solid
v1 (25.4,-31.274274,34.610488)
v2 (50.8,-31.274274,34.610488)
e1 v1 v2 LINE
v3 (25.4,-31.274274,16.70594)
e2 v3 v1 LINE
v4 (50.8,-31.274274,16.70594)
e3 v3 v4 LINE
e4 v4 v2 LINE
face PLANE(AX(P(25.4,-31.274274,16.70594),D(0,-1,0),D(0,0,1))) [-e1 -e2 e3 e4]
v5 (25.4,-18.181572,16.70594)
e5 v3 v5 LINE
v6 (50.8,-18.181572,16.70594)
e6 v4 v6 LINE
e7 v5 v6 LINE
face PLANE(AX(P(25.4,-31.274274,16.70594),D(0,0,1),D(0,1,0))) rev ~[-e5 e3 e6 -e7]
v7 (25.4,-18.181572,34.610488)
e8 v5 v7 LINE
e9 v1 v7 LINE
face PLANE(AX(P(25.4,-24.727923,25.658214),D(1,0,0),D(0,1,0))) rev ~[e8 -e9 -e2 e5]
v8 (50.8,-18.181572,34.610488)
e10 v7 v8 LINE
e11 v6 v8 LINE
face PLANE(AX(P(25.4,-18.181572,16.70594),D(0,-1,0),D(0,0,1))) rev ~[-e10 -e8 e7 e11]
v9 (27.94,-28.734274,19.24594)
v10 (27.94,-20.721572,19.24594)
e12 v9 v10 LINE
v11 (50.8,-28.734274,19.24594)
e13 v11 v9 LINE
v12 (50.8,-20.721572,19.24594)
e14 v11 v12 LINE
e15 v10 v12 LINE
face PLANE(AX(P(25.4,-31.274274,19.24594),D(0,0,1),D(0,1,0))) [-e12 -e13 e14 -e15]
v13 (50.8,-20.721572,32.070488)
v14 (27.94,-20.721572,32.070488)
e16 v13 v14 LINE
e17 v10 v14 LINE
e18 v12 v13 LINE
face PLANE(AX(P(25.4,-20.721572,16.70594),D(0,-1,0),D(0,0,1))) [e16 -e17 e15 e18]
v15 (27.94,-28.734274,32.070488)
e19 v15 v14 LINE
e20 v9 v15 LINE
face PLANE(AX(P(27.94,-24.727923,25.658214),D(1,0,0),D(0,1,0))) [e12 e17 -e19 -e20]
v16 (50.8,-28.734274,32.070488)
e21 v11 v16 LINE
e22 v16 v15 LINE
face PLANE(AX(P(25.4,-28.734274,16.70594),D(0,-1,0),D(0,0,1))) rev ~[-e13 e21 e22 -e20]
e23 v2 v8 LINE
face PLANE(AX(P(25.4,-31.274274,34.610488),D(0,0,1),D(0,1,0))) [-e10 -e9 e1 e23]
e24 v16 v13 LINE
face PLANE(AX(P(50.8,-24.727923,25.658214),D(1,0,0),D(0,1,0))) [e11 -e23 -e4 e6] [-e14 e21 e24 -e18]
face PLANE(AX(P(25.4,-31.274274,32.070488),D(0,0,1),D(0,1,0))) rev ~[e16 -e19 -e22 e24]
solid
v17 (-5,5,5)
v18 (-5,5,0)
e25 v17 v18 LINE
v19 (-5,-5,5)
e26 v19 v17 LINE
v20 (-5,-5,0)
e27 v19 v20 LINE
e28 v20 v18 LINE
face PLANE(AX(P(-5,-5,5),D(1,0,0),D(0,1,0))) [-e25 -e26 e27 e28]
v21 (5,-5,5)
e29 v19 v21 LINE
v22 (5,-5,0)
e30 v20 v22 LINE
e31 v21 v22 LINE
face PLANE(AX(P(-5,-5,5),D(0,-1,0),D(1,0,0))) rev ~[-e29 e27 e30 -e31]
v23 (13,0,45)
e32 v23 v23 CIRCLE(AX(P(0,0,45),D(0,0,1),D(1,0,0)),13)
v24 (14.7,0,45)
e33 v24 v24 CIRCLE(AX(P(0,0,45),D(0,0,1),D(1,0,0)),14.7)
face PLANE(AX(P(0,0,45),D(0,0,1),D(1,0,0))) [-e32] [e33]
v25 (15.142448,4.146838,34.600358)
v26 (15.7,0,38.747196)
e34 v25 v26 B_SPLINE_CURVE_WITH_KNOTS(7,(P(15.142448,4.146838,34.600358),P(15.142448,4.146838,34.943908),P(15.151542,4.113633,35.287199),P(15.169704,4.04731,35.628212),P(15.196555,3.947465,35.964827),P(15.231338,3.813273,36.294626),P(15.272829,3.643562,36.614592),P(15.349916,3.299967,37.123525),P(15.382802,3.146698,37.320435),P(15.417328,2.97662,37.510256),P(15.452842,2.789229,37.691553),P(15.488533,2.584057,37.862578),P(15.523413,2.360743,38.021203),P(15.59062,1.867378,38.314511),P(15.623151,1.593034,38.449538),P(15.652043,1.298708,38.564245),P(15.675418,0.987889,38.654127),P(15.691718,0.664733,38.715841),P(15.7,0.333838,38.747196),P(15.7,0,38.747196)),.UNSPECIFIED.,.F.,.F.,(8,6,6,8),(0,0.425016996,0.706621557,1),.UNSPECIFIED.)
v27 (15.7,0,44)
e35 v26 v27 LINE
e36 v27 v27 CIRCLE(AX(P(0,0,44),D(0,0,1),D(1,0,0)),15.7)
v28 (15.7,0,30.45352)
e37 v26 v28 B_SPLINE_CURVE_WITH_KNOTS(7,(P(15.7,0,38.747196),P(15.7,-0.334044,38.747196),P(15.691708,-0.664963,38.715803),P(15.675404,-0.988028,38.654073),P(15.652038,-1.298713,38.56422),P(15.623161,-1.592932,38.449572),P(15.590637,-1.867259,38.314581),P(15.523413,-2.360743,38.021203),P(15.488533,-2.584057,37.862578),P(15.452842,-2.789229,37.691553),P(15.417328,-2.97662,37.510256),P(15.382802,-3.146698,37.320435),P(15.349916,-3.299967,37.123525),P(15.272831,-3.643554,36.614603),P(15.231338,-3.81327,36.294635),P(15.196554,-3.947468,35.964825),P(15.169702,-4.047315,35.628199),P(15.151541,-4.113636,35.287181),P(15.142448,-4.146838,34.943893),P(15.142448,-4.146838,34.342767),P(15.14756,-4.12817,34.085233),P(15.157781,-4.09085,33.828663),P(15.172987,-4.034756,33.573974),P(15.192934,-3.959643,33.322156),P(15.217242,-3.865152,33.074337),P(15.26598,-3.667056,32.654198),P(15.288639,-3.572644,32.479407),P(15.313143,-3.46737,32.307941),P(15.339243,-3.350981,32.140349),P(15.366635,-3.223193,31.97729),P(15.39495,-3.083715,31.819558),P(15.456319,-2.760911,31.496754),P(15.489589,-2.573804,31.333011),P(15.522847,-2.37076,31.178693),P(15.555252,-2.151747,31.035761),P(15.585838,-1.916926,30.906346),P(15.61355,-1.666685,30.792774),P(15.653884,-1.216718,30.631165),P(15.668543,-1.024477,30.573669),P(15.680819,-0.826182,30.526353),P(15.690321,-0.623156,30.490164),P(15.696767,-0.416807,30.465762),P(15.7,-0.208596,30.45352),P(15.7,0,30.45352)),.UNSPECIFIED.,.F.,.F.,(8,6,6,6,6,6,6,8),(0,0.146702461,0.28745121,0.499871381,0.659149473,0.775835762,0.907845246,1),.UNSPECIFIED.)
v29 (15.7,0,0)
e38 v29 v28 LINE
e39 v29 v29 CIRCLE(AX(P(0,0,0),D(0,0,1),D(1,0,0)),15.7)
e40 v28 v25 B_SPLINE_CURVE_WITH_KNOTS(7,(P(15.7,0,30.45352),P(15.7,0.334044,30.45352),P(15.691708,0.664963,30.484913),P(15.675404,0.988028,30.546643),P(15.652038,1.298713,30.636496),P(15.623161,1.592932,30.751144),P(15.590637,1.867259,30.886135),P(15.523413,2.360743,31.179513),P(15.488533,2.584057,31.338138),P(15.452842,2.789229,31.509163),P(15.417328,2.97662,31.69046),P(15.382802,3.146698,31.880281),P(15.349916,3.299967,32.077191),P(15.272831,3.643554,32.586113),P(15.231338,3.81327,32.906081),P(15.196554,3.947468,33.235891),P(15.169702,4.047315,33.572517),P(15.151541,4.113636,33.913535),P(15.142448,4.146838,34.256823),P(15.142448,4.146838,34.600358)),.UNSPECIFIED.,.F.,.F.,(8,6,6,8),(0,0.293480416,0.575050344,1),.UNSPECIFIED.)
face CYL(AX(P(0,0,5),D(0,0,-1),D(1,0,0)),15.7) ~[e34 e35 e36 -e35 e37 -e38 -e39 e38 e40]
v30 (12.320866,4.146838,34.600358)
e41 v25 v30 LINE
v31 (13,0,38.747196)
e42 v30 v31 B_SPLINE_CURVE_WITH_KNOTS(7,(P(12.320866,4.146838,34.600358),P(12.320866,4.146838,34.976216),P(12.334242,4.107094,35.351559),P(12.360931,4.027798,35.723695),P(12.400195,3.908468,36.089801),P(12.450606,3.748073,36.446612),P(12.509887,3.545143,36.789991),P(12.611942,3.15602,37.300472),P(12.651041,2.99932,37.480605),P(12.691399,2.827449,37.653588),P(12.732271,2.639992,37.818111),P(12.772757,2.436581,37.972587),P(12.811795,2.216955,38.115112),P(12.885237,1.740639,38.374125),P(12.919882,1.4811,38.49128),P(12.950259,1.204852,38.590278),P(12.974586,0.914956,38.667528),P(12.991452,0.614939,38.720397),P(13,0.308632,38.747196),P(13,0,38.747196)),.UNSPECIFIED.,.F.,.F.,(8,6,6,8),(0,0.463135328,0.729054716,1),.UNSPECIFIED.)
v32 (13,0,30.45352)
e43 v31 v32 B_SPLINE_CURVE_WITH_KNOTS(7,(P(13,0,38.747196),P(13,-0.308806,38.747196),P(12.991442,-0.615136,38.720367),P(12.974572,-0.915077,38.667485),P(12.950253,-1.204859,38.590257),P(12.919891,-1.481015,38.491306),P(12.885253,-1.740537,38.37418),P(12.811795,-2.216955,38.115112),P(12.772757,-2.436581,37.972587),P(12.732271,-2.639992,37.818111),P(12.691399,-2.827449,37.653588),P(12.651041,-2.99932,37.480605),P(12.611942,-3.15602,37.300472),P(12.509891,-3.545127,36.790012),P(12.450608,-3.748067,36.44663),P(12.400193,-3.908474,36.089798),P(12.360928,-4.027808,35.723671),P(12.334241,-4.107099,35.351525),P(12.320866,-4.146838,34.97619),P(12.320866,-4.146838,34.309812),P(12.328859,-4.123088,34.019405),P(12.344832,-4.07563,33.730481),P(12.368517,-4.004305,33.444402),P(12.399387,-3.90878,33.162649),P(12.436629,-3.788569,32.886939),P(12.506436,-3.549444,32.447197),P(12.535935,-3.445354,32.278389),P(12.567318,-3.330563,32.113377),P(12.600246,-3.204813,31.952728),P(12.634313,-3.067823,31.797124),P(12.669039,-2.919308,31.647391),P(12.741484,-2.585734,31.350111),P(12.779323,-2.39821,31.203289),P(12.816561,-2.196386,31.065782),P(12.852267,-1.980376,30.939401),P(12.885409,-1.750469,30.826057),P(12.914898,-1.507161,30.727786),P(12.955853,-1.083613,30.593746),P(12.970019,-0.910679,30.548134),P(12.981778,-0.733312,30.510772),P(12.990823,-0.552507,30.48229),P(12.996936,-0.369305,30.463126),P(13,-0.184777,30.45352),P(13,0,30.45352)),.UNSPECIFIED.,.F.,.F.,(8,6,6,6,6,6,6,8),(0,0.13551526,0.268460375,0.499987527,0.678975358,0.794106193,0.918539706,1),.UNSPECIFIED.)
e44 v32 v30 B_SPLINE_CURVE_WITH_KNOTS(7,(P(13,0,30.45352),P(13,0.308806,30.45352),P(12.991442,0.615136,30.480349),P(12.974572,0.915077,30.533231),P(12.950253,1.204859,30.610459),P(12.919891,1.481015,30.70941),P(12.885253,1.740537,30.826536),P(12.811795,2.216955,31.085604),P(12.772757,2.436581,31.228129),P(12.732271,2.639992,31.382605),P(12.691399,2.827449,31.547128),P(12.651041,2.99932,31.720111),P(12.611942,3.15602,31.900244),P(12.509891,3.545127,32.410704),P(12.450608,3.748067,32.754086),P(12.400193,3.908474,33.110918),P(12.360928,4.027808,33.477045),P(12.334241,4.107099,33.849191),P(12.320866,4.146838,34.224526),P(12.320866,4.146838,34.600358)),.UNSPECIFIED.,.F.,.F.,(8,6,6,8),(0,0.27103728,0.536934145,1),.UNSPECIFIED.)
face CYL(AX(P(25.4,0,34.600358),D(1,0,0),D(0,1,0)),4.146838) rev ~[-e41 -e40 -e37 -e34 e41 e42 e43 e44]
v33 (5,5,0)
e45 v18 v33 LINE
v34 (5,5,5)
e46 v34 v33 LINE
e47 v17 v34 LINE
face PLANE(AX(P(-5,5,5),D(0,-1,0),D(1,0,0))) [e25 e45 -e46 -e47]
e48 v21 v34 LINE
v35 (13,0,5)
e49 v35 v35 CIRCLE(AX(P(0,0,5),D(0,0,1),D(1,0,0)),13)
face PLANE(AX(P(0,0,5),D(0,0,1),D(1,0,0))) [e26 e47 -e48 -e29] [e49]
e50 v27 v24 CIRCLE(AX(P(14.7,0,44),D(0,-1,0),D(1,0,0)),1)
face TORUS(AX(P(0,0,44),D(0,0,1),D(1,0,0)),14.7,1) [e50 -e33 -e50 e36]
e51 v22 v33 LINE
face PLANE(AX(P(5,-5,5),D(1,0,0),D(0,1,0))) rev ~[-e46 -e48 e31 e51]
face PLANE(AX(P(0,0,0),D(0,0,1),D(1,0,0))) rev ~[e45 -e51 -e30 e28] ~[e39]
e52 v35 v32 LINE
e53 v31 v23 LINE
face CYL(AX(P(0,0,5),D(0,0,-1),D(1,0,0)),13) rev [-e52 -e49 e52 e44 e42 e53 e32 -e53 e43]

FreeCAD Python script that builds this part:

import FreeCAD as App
import Part
import Sketcher
from FreeCAD import Vector


def edges_at(feature, points):
    """Names of the edges that pass closest to the given points."""
    edges = feature.Shape.Edges
    near = lambda p: min(range(len(edges)), key=lambda i: edges[i].distToShape(Part.Vertex(*p))[0])
    return sorted({f"Edge{near(p) + 1}" for p in points})


def faces_at(feature, points):
    """Names of the faces that lie closest to the given points."""
    faces = feature.Shape.Faces
    near = lambda p: min(range(len(faces)), key=lambda i: faces[i].distToShape(Part.Vertex(*p))[0])
    return sorted({f"Face{near(p) + 1}" for p in points})

doc = App.newDocument("Part")
params = doc.addObject("Spreadsheet::Sheet", "Params")
for row, (alias, value) in enumerate([
    ("sketch1_diameter", "31.4 mm"),
    ("pad1_length", "5 mm"),
    ("sketch2_diameter", "26 mm"),
    ("sketch2_diameter2", "31.4 mm"),
    ("pad2_length", "40 mm"),
    ("sketch3_width", "10 mm"),
    ("pocket1_length", "25.4 mm"),
    ("fillet_radius", "1 mm"),
    ("pocket2_length", "25.4 mm"),
    ("pad3_length", "25.4 mm"),
    ("thickness_wall", "2.54 mm"),
], start=1):
    params.set(f"A{row}", alias)
    params.set(f"B{row}", "=" + value)
    params.setAlias(f"B{row}", alias)

body = doc.addObject("PartDesign::Body", "Body")

# Sketch on XY plane
sketch1 = body.newObject("Sketcher::SketchObject", "Sketch")
sketch1.AttachmentSupport = (doc.getObject("XY_Plane"), [""])
sketch1.MapMode = "FlatFace"
sketch1.addGeometry(Part.Circle(Vector(0, 0, 0), Vector(0, 0, 1), 16), False)
sketch1.addConstraint(Sketcher.Constraint("Coincident", 0, 3, -1, 1))
sketch1.addConstraint(Sketcher.Constraint("Diameter", 0, 31.4))
sketch1.setExpression("Constraints[1]", "Params.sketch1_diameter")
pad1 = body.newObject("PartDesign::Pad", "Pad")
pad1.Profile = sketch1
pad1.setExpression("Length", "Params.pad1_length")

# Sketch on XY plane
sketch2 = body.newObject("Sketcher::SketchObject", "Sketch001")
sketch2.AttachmentSupport = (doc.getObject("XY_Plane"), [""])
sketch2.MapMode = "FlatFace"
sketch2.AttachmentOffset = App.Placement(Vector(0, 0, 5), App.Rotation())
sketch2.addGeometry(Part.Circle(Vector(0, 0, 0), Vector(0, 0, 1), 16), False)
sketch2.addGeometry(Part.Circle(Vector(0, 0, 0), Vector(0, 0, 1), 13), False)
sketch2.addConstraint(Sketcher.Constraint("Coincident", 0, 3, -1, 1))
sketch2.addConstraint(Sketcher.Constraint("Coincident", 1, 3, -1, 1))
sketch2.addConstraint(Sketcher.Constraint("Diameter", 1, 26.0))
sketch2.addConstraint(Sketcher.Constraint("Diameter", 0, 31.4))
sketch2.setExpression("Constraints[2]", "Params.sketch2_diameter")
sketch2.setExpression("Constraints[3]", "Params.sketch2_diameter2")
pad2 = body.newObject("PartDesign::Pad", "Pad001")
pad2.Profile = sketch2
pad2.setExpression("Length", "Params.pad2_length")

# Sketch on XY plane
sketch3 = body.newObject("Sketcher::SketchObject", "Sketch002")
sketch3.AttachmentSupport = (doc.getObject("XY_Plane"), [""])
sketch3.MapMode = "FlatFace"
sketch3.AttachmentOffset = App.Placement(Vector(0, 0, 5), App.Rotation())
sketch3.addGeometry(Part.LineSegment(Vector(-5, 5, 0), Vector(-5, -5, 0)), False)
sketch3.addGeometry(Part.LineSegment(Vector(-5, -5, 0), Vector(5, -5, 0)), False)
sketch3.addGeometry(Part.LineSegment(Vector(5, -5, 0), Vector(5, 5, 0)), False)
sketch3.addGeometry(Part.LineSegment(Vector(5, 5, 0), Vector(-5, 5, 0)), False)
sketch3.addConstraint(Sketcher.Constraint("Coincident", 0, 2, 1, 1))
sketch3.addConstraint(Sketcher.Constraint("Coincident", 1, 2, 2, 1))
sketch3.addConstraint(Sketcher.Constraint("Coincident", 2, 2, 3, 1))
sketch3.addConstraint(Sketcher.Constraint("Coincident", 3, 2, 0, 1))
sketch3.addConstraint(Sketcher.Constraint("Vertical", 0))
sketch3.addConstraint(Sketcher.Constraint("Horizontal", 1))
sketch3.addConstraint(Sketcher.Constraint("Vertical", 2))
sketch3.addConstraint(Sketcher.Constraint("Horizontal", 3))
sketch3.addConstraint(Sketcher.Constraint("Symmetric", 0, 2, 2, 2, -1, 1))
sketch3.addConstraint(Sketcher.Constraint("Equal", 3, 0))
sketch3.addConstraint(Sketcher.Constraint("DistanceX", 1, 1, 1, 2, 10.0))
sketch3.setExpression("Constraints[10]", "Params.sketch3_width")
pocket1 = body.newObject("PartDesign::Pocket", "Pocket")
pocket1.Profile = sketch3
pocket1.setExpression("Length", "Params.pocket1_length")
doc.recompute()

fillet = body.newObject("PartDesign::Fillet", "Fillet")
fillet.Base = (pocket1, edges_at(pocket1, [(-15.7, 0, 45)]))
fillet.setExpression("Radius", "Params.fillet_radius")

# Sketch on YZ plane
sketch4 = body.newObject("Sketcher::SketchObject", "Sketch003")
sketch4.AttachmentSupport = (doc.getObject("YZ_Plane"), [""])
sketch4.MapMode = "FlatFace"
sketch4.AttachmentOffset = App.Placement(Vector(0, 0, 25.4), App.Rotation())
sketch4.addGeometry(Part.Circle(Vector(0, 34.6, 0), Vector(0, 0, 1), 4.1), False)
sketch4.addConstraint(Sketcher.Constraint("PointOnObject", 0, 3, -2))
sketch4.addConstraint(Sketcher.Constraint("Diameter", 0, 8.293676))
sketch4.addConstraint(Sketcher.Constraint("DistanceY", -1, 1, 0, 3, 34.600358))
pocket2 = body.newObject("PartDesign::Pocket", "Pocket001")
pocket2.Profile = sketch4
pocket2.setExpression("Length", "Params.pocket2_length")
body2 = doc.addObject("PartDesign::Body", "Body001")

# Sketch on YZ plane
sketch5 = body2.newObject("Sketcher::SketchObject", "Sketch004")
sketch5.AttachmentSupport = (doc.getObject("YZ_Plane001"), [""])
sketch5.MapMode = "FlatFace"
sketch5.AttachmentOffset = App.Placement(Vector(0, 0, 25.4), App.Rotation())
sketch5.addGeometry(Part.LineSegment(Vector(-31, 35, 0), Vector(-31, 17, 0)), False)
sketch5.addGeometry(Part.LineSegment(Vector(-31, 17, 0), Vector(-18, 17, 0)), False)
sketch5.addGeometry(Part.LineSegment(Vector(-18, 17, 0), Vector(-18, 35, 0)), False)
sketch5.addGeometry(Part.LineSegment(Vector(-18, 35, 0), Vector(-31, 35, 0)), False)
sketch5.addConstraint(Sketcher.Constraint("Coincident", 0, 2, 1, 1))
sketch5.addConstraint(Sketcher.Constraint("Coincident", 1, 2, 2, 1))
sketch5.addConstraint(Sketcher.Constraint("Coincident", 2, 2, 3, 1))
sketch5.addConstraint(Sketcher.Constraint("Coincident", 3, 2, 0, 1))
sketch5.addConstraint(Sketcher.Constraint("Vertical", 0))
sketch5.addConstraint(Sketcher.Constraint("Horizontal", 1))
sketch5.addConstraint(Sketcher.Constraint("Vertical", 2))
sketch5.addConstraint(Sketcher.Constraint("Horizontal", 3))
sketch5.addConstraint(Sketcher.Constraint("DistanceX", 1, 1, 1, 2, 13.092702))
sketch5.addConstraint(Sketcher.Constraint("DistanceY", 0, 2, 0, 1, 17.904548))
sketch5.addConstraint(Sketcher.Constraint("DistanceY", -1, 1, 0, 2, 16.70594))
sketch5.addConstraint(Sketcher.Constraint("DistanceX", 1, 2, -1, 1, 18.181572))
pad3 = body2.newObject("PartDesign::Pad", "Pad002")
pad3.Profile = sketch5
pad3.setExpression("Length", "Params.pad3_length")
doc.recompute()

thickness = body2.newObject("PartDesign::Thickness", "Thickness")
thickness.Base = (pad3, faces_at(pad3, [(50.8, -24.728, 25.658)]))
thickness.setExpression("Value", "Params.thickness_wall")
thickness.Reversed = True
thickness.Join = "Arc"

doc.recompute()
